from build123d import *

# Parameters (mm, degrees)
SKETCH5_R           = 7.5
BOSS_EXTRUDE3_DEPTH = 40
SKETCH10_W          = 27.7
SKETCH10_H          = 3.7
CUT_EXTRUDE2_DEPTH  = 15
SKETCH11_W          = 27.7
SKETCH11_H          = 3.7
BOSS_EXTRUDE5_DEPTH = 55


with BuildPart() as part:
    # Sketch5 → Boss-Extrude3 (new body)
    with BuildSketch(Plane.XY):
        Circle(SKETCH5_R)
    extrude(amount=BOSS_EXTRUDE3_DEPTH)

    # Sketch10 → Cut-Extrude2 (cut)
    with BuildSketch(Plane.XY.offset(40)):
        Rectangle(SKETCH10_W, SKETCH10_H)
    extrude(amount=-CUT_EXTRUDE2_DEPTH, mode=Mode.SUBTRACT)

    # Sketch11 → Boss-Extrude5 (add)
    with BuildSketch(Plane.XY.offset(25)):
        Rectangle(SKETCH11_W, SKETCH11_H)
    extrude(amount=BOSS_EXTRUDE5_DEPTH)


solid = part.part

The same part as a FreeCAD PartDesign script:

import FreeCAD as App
import Part
import Sketcher
from FreeCAD import Vector

doc = App.newDocument("Part")
params = doc.addObject("Spreadsheet::Sheet", "Params")
for row, (alias, value) in enumerate([
    ("sketch1_diameter", "15 mm"),
    ("pad1_length", "40 mm"),
    ("sketch2_width", "27.7 mm"),
    ("sketch2_height", "3.7 mm"),
    ("pocket1_length", "15 mm"),
    ("sketch3_width", "27.7 mm"),
    ("sketch3_height", "3.7 mm"),
    ("pad2_length", "55 mm"),
], start=1):
    params.set(f"A{row}", alias)
    params.set(f"B{row}", "=" + value)
    params.setAlias(f"B{row}", alias)

body = doc.addObject("PartDesign::Body", "Body")

# Sketch on XY plane
sketch1 = doc.addObject("Sketcher::SketchObject", "Sketch")
body.addObject(sketch1)
sketch1.AttachmentSupport = (doc.XY_Plane, [""])
sketch1.MapMode = "FlatFace"
sketch1.addGeometry(Part.Circle(Vector(0, 0, 0), Vector(0, 0, 1), 8), False)
sketch1.addConstraint(Sketcher.Constraint("Coincident", 0, 3, -1, 1))
sketch1.addConstraint(Sketcher.Constraint("Diameter", 0, 15.0))
sketch1.setExpression("Constraints[1]", "Params.sketch1_diameter")
pad1 = doc.addObject("PartDesign::Pad", "Pad")
body.addObject(pad1)
pad1.Profile = sketch1
pad1.setExpression("Length", "Params.pad1_length")

# Sketch on XY plane
sketch2 = doc.addObject("Sketcher::SketchObject", "Sketch001")
body.addObject(sketch2)
sketch2.AttachmentSupport = (doc.XY_Plane, [""])
sketch2.MapMode = "FlatFace"
sketch2.AttachmentOffset = App.Placement(Vector(0, 0, 40), App.Rotation())
sketch2.addGeometry(Part.LineSegment(Vector(-13.8, 1.9, 0), Vector(-13.8, -1.9, 0)), False)
sketch2.addGeometry(Part.LineSegment(Vector(-13.8, -1.9, 0), Vector(13.8, -1.9, 0)), False)
sketch2.addGeometry(Part.LineSegment(Vector(13.8, -1.9, 0), Vector(13.8, 1.9, 0)), False)
sketch2.addGeometry(Part.LineSegment(Vector(13.8, 1.9, 0), Vector(-13.8, 1.9, 0)), False)
sketch2.addConstraint(Sketcher.Constraint("Coincident", 0, 2, 1, 1))
sketch2.addConstraint(Sketcher.Constraint("Coincident", 1, 2, 2, 1))
sketch2.addConstraint(Sketcher.Constraint("Coincident", 2, 2, 3, 1))
sketch2.addConstraint(Sketcher.Constraint("Coincident", 3, 2, 0, 1))
sketch2.addConstraint(Sketcher.Constraint("Vertical", 0))
sketch2.addConstraint(Sketcher.Constraint("Horizontal", 1))
sketch2.addConstraint(Sketcher.Constraint("Vertical", 2))
sketch2.addConstraint(Sketcher.Constraint("Horizontal", 3))
sketch2.addConstraint(Sketcher.Constraint("Symmetric", 0, 2, 2, 2, -1, 1))
sketch2.addConstraint(Sketcher.Constraint("DistanceX", 1, 1, 1, 2, 27.7))
sketch2.addConstraint(Sketcher.Constraint("DistanceY", 0, 2, 0, 1, 3.7))
sketch2.setExpression("Constraints[9]", "Params.sketch2_width")
sketch2.setExpression("Constraints[10]", "Params.sketch2_height")
pocket1 = doc.addObject("PartDesign::Pocket", "Pocket")
body.addObject(pocket1)
pocket1.Profile = sketch2
pocket1.setExpression("Length", "Params.pocket1_length")

# Sketch on XY plane
sketch3 = doc.addObject("Sketcher::SketchObject", "Sketch002")
body.addObject(sketch3)
sketch3.AttachmentSupport = (doc.XY_Plane, [""])
sketch3.MapMode = "FlatFace"
sketch3.AttachmentOffset = App.Placement(Vector(0, 0, 25), App.Rotation())
sketch3.addGeometry(Part.LineSegment(Vector(-13.8, 1.9, 0), Vector(-13.8, -1.9, 0)), False)
sketch3.addGeometry(Part.LineSegment(Vector(-13.8, -1.9, 0), Vector(13.8, -1.9, 0)), False)
sketch3.addGeometry(Part.LineSegment(Vector(13.8, -1.9, 0), Vector(13.8, 1.9, 0)), False)
sketch3.addGeometry(Part.LineSegment(Vector(13.8, 1.9, 0), Vector(-13.8, 1.9, 0)), False)
sketch3.addConstraint(Sketcher.Constraint("Coincident", 0, 2, 1, 1))
sketch3.addConstraint(Sketcher.Constraint("Coincident", 1, 2, 2, 1))
sketch3.addConstraint(Sketcher.Constraint("Coincident", 2, 2, 3, 1))
sketch3.addConstraint(Sketcher.Constraint("Coincident", 3, 2, 0, 1))
sketch3.addConstraint(Sketcher.Constraint("Vertical", 0))
sketch3.addConstraint(Sketcher.Constraint("Horizontal", 1))
sketch3.addConstraint(Sketcher.Constraint("Vertical", 2))
sketch3.addConstraint(Sketcher.Constraint("Horizontal", 3))
sketch3.addConstraint(Sketcher.Constraint("Symmetric", 0, 2, 2, 2, -1, 1))
sketch3.addConstraint(Sketcher.Constraint("DistanceX", 1, 1, 1, 2, 27.7))
sketch3.addConstraint(Sketcher.Constraint("DistanceY", 0, 2, 0, 1, 3.7))
sketch3.setExpression("Constraints[9]", "Params.sketch3_width")
sketch3.setExpression("Constraints[10]", "Params.sketch3_height")
pad2 = doc.addObject("PartDesign::Pad", "Pad001")
body.addObject(pad2)
pad2.Profile = sketch3
pad2.setExpression("Length", "Params.pad2_length")

doc.recompute()
